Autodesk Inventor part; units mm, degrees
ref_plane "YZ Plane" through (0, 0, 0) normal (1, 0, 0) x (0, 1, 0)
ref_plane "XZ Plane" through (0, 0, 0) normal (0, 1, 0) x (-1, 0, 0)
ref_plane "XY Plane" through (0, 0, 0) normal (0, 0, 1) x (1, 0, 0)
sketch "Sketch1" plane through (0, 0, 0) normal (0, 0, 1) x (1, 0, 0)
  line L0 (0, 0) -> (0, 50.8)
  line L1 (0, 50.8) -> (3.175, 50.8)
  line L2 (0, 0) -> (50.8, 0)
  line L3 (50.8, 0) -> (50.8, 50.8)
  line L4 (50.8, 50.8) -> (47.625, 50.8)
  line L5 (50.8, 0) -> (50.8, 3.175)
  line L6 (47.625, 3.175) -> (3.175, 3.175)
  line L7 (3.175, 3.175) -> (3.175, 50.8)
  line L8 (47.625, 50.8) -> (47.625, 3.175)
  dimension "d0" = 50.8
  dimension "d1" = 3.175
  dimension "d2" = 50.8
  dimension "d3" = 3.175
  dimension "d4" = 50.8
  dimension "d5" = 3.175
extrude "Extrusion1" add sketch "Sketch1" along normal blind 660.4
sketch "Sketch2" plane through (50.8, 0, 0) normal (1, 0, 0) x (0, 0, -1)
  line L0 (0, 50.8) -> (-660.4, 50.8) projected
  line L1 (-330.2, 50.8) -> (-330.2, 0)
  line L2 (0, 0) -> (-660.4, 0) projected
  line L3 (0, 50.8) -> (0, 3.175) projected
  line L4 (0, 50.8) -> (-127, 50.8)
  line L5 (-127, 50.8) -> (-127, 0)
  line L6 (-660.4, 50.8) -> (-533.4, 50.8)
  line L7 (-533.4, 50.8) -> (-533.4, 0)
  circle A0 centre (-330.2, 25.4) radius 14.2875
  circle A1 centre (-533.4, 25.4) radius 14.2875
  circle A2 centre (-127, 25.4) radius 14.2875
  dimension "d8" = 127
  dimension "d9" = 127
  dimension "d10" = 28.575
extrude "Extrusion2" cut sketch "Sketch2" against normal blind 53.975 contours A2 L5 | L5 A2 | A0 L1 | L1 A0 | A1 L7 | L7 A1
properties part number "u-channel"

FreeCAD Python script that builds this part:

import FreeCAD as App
import Part
import Sketcher
from FreeCAD import Vector
Q = App.Units.Quantity


def add_polygon(sketch, points):
    """Adds a closed chain of lines whose ends are joined by coincident constraints."""
    first, n = sketch.GeometryCount, len(points)
    for a, b in zip(points, points[1:] + points[:1]):
        sketch.addGeometry(Part.LineSegment(App.Vector(*a, 0), App.Vector(*b, 0)), False)
    for i in range(n):
        sketch.addConstraint(Sketcher.Constraint("Coincident", first + i, 2, first + (i + 1) % n, 1))

doc = App.newDocument("Part")
body = doc.addObject("PartDesign::Body", "Body")

# Sketch on XY plane
sketch1 = doc.addObject("Sketcher::SketchObject", "Sketch")
body.addObject(sketch1)
sketch1.AttachmentSupport = (doc.XY_Plane, [""])
sketch1.MapMode = "FlatFace"
add_polygon(sketch1, [(0, 50.8), (0, 0), (50.8, 0), (50.8, 50.8), (47.6, 50.8), (47.6, 3.2), (3.2, 3.2), (3.2, 50.8)])  # lines 0-7
sketch1.addConstraint([
    Sketcher.Constraint("Vertical", 0),
    Sketcher.Constraint("Horizontal", 1),
    Sketcher.Constraint("Vertical", 2),
    Sketcher.Constraint("Horizontal", 3),
    Sketcher.Constraint("Vertical", 4),
    Sketcher.Constraint("Horizontal", 5),
    Sketcher.Constraint("Vertical", 6),
    Sketcher.Constraint("Horizontal", 7),
    Sketcher.Constraint("Coincident", 0, 2, -1, 1),
    Sketcher.Constraint("Horizontal", 3, 2, 6, 2),
    Sketcher.Constraint("Equal", 3, 7),
    Sketcher.Constraint("Equal", 1, 0),
    Sketcher.Constraint("DistanceX", 1, 1, 1, 2, Q("2 in")),
    Sketcher.Constraint("DistanceX", 3, 2, 3, 1, Q("0.125 in")),
    Sketcher.Constraint("DistanceY", -1, 1, 4, 2, Q("0.125 in")),
])
pad1 = doc.addObject("PartDesign::Pad", "Pad")
body.addObject(pad1)
pad1.Profile = sketch1
pad1.Length = Q("26 in")

# Sketch on YZ plane
sketch2 = doc.addObject("Sketcher::SketchObject", "Sketch001")
body.addObject(sketch2)
sketch2.AttachmentSupport = (doc.YZ_Plane, [""])
sketch2.MapMode = "FlatFace"
sketch2.AttachmentOffset = App.Placement(Vector(0, 0, 2 * 25.4), App.Rotation())
sketch2.addGeometry([
    Part.Circle(Vector(25, 127, 0), Vector(0, 0, 1), 14),
    Part.Circle(Vector(25, 330, 0), Vector(0, 0, 1), 14),
    Part.Circle(Vector(25, 533, 0), Vector(0, 0, 1), 14),
], False)
sketch2.addConstraint([
    Sketcher.Constraint("Equal", 0, 1),
    Sketcher.Constraint("Equal", 1, 2),
    Sketcher.Constraint("Vertical", 0, 3, 1, 3),
    Sketcher.Constraint("Vertical", 1, 3, 2, 3),
    Sketcher.Constraint("Diameter", 0, Q("1.125 in")),
    Sketcher.Constraint("DistanceY", -1, 1, 0, 3, Q("5 in")),
    Sketcher.Constraint("DistanceX", -1, 1, 0, 3, Q("1 in")),
    Sketcher.Constraint("DistanceY", -1, 1, 1, 3, Q("13 in")),
    Sketcher.Constraint("DistanceY", -1, 1, 2, 3, Q("21 in")),
])
pocket1 = doc.addObject("PartDesign::Pocket", "Pocket")
body.addObject(pocket1)
pocket1.Profile = sketch2
pocket1.Length = Q("2.125 in")

doc.recompute()
